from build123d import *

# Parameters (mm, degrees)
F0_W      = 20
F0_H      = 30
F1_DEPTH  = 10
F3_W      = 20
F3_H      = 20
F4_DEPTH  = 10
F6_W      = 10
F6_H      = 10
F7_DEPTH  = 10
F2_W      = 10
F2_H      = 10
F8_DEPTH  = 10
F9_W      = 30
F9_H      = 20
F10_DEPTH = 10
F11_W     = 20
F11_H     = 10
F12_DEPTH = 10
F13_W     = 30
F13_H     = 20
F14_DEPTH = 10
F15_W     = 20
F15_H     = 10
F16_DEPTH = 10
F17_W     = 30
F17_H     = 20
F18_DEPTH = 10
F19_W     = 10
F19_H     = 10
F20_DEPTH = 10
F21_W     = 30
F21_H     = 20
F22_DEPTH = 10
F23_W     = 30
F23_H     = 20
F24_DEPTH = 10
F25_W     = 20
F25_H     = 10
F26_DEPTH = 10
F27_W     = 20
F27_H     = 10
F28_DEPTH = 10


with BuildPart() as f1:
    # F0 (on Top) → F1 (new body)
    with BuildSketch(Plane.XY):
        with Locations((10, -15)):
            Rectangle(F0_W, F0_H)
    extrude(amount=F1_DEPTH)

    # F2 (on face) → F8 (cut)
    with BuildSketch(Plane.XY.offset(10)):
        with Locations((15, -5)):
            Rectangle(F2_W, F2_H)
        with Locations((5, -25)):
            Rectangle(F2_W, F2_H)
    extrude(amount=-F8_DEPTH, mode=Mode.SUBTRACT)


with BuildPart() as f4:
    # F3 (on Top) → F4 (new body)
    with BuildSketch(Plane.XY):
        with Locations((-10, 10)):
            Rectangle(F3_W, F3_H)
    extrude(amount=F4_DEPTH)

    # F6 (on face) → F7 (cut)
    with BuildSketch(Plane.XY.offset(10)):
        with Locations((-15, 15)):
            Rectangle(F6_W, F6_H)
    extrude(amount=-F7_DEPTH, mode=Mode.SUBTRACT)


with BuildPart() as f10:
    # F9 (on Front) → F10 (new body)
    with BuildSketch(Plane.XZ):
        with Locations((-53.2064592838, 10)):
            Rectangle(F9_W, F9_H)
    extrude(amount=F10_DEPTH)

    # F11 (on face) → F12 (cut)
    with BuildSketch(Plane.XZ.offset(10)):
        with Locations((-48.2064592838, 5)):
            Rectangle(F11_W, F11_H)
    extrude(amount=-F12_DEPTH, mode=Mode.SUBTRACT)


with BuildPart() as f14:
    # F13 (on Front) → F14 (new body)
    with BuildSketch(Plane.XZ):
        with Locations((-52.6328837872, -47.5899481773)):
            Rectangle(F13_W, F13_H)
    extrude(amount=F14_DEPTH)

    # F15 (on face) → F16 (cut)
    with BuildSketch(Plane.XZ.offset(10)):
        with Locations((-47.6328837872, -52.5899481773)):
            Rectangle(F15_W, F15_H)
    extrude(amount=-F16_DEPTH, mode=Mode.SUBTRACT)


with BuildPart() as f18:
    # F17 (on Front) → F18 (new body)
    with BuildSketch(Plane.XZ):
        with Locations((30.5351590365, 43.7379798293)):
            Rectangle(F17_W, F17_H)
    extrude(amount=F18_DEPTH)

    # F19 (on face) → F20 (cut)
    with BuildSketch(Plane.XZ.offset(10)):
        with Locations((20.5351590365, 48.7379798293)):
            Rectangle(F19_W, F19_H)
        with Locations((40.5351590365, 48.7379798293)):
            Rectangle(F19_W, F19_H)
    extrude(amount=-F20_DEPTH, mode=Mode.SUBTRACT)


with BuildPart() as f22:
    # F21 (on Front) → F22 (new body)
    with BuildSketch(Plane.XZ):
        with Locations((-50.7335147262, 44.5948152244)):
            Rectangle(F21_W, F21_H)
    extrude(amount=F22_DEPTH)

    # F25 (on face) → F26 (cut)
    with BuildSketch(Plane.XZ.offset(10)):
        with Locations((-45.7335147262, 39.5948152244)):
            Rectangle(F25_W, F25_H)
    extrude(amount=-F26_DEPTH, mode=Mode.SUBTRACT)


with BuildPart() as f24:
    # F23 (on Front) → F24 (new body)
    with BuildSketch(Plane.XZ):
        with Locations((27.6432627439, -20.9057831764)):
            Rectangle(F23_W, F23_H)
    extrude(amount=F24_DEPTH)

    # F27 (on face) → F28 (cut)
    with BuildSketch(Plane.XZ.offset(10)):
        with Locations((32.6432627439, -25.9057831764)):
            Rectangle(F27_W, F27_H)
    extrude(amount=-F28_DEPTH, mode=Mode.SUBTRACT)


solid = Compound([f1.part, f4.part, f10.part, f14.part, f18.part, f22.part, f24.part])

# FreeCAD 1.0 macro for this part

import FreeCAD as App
import Part
import Sketcher
from FreeCAD import Vector

doc = App.newDocument("Part")
body = doc.addObject("PartDesign::Body", "Body")

sketch1 = body.newObject("Sketcher::SketchObject", "Sketch")
sketch1.AttachmentSupport = (doc.getObject("XY_Plane"), [""])
sketch1.MapMode = "FlatFace"
sketch1.addGeometry(Part.LineSegment(Vector(0, 0, 0), Vector(0, -30, 0)), False)
sketch1.addGeometry(Part.LineSegment(Vector(0, -30, 0), Vector(20, -30, 0)), False)
sketch1.addGeometry(Part.LineSegment(Vector(20, -30, 0), Vector(20, 0, 0)), False)
sketch1.addGeometry(Part.LineSegment(Vector(20, 0, 0), Vector(0, 0, 0)), False)
sketch1.addConstraint(Sketcher.Constraint("Coincident", 0, 2, 1, 1))
sketch1.addConstraint(Sketcher.Constraint("Coincident", 1, 2, 2, 1))
sketch1.addConstraint(Sketcher.Constraint("Coincident", 2, 2, 3, 1))
sketch1.addConstraint(Sketcher.Constraint("Coincident", 3, 2, 0, 1))
sketch1.addConstraint(Sketcher.Constraint("Vertical", 0))
sketch1.addConstraint(Sketcher.Constraint("Horizontal", 1))
sketch1.addConstraint(Sketcher.Constraint("Vertical", 2))
sketch1.addConstraint(Sketcher.Constraint("Horizontal", 3))
sketch1.addConstraint(Sketcher.Constraint("Coincident", 3, 2, -1, 1))
sketch1.addConstraint(Sketcher.Constraint("DistanceX", 1, 1, 1, 2, 20.0))
sketch1.addConstraint(Sketcher.Constraint("DistanceY", 0, 2, 0, 1, 30.0))
pad1 = body.newObject("PartDesign::Pad", "Pad")
pad1.Profile = sketch1
pad1.Length = 10

sketch2 = body.newObject("Sketcher::SketchObject", "Sketch001")
sketch2.AttachmentSupport = (doc.getObject("XY_Plane"), [""])
sketch2.MapMode = "FlatFace"
sketch2.AttachmentOffset = App.Placement(Vector(0, 0, 10), App.Rotation())
sketch2.addGeometry(Part.LineSegment(Vector(10, 0, 0), Vector(10, -10, 0)), False)
sketch2.addGeometry(Part.LineSegment(Vector(10, -10, 0), Vector(20, -10, 0)), False)
sketch2.addGeometry(Part.LineSegment(Vector(20, -10, 0), Vector(20, 0, 0)), False)
sketch2.addGeometry(Part.LineSegment(Vector(20, 0, 0), Vector(10, 0, 0)), False)
sketch2.addGeometry(Part.LineSegment(Vector(0, -20, 0), Vector(0, -30, 0)), False)
sketch2.addGeometry(Part.LineSegment(Vector(0, -30, 0), Vector(10, -30, 0)), False)
sketch2.addGeometry(Part.LineSegment(Vector(10, -30, 0), Vector(10, -20, 0)), False)
sketch2.addGeometry(Part.LineSegment(Vector(10, -20, 0), Vector(0, -20, 0)), False)
sketch2.addConstraint(Sketcher.Constraint("Coincident", 0, 2, 1, 1))
sketch2.addConstraint(Sketcher.Constraint("Coincident", 1, 2, 2, 1))
sketch2.addConstraint(Sketcher.Constraint("Coincident", 2, 2, 3, 1))
sketch2.addConstraint(Sketcher.Constraint("Coincident", 3, 2, 0, 1))
sketch2.addConstraint(Sketcher.Constraint("Coincident", 4, 2, 5, 1))
sketch2.addConstraint(Sketcher.Constraint("Coincident", 5, 2, 6, 1))
sketch2.addConstraint(Sketcher.Constraint("Coincident", 6, 2, 7, 1))
sketch2.addConstraint(Sketcher.Constraint("Coincident", 7, 2, 4, 1))
sketch2.addConstraint(Sketcher.Constraint("Vertical", 0))
sketch2.addConstraint(Sketcher.Constraint("Horizontal", 1))
sketch2.addConstraint(Sketcher.Constraint("Vertical", 2))
sketch2.addConstraint(Sketcher.Constraint("Horizontal", 3))
sketch2.addConstraint(Sketcher.Constraint("Vertical", 4))
sketch2.addConstraint(Sketcher.Constraint("Horizontal", 5))
sketch2.addConstraint(Sketcher.Constraint("Vertical", 6))
sketch2.addConstraint(Sketcher.Constraint("Horizontal", 7))
sketch2.addConstraint(Sketcher.Constraint("PointOnObject", 2, 2, -1))
sketch2.addConstraint(Sketcher.Constraint("PointOnObject", 4, 2, -2))
sketch2.addConstraint(Sketcher.Constraint("Vertical", 3, 2, 5, 2))
sketch2.addConstraint(Sketcher.Constraint("Equal", 3, 5))
sketch2.addConstraint(Sketcher.Constraint("Equal", 7, 0))
sketch2.addConstraint(Sketcher.Constraint("Equal", 2, 4))
sketch2.addConstraint(Sketcher.Constraint("DistanceX", 1, 1, 1, 2, 10.0))
sketch2.addConstraint(Sketcher.Constraint("DistanceY", 4, 2, -1, 1, 30.0))
pocket1 = body.newObject("PartDesign::Pocket", "Pocket")
pocket1.Profile = sketch2
pocket1.Length = 10
body2 = doc.addObject("PartDesign::Body", "Body001")

sketch3 = body2.newObject("Sketcher::SketchObject", "Sketch002")
sketch3.AttachmentSupport = (doc.getObject("XY_Plane001"), [""])
sketch3.MapMode = "FlatFace"
sketch3.addGeometry(Part.LineSegment(Vector(-20, 20, 0), Vector(-20, 0, 0)), False)
sketch3.addGeometry(Part.LineSegment(Vector(-20, 0, 0), Vector(0, 0, 0)), False)
sketch3.addGeometry(Part.LineSegment(Vector(0, 0, 0), Vector(0, 20, 0)), False)
sketch3.addGeometry(Part.LineSegment(Vector(0, 20, 0), Vector(-20, 20, 0)), False)
sketch3.addConstraint(Sketcher.Constraint("Coincident", 0, 2, 1, 1))
sketch3.addConstraint(Sketcher.Constraint("Coincident", 1, 2, 2, 1))
sketch3.addConstraint(Sketcher.Constraint("Coincident", 2, 2, 3, 1))
sketch3.addConstraint(Sketcher.Constraint("Coincident", 3, 2, 0, 1))
sketch3.addConstraint(Sketcher.Constraint("Vertical", 0))
sketch3.addConstraint(Sketcher.Constraint("Horizontal", 1))
sketch3.addConstraint(Sketcher.Constraint("Vertical", 2))
sketch3.addConstraint(Sketcher.Constraint("Horizontal", 3))
sketch3.addConstraint(Sketcher.Constraint("Coincident", 1, 2, -1, 1))
sketch3.addConstraint(Sketcher.Constraint("Equal", 3, 0))
sketch3.addConstraint(Sketcher.Constraint("DistanceX", 1, 1, 1, 2, 20.0))
pad2 = body2.newObject("PartDesign::Pad", "Pad001")
pad2.Profile = sketch3
pad2.Length = 10

sketch4 = body2.newObject("Sketcher::SketchObject", "Sketch003")
sketch4.AttachmentSupport = (doc.getObject("XY_Plane001"), [""])
sketch4.MapMode = "FlatFace"
sketch4.AttachmentOffset = App.Placement(Vector(0, 0, 10), App.Rotation())
sketch4.addGeometry(Part.LineSegment(Vector(-20, 20, 0), Vector(-20, 10, 0)), False)
sketch4.addGeometry(Part.LineSegment(Vector(-20, 10, 0), Vector(-10, 10, 0)), False)
sketch4.addGeometry(Part.LineSegment(Vector(-10, 10, 0), Vector(-10, 20, 0)), False)
sketch4.addGeometry(Part.LineSegment(Vector(-10, 20, 0), Vector(-20, 20, 0)), False)
sketch4.addConstraint(Sketcher.Constraint("Coincident", 0, 2, 1, 1))
sketch4.addConstraint(Sketcher.Constraint("Coincident", 1, 2, 2, 1))
sketch4.addConstraint(Sketcher.Constraint("Coincident", 2, 2, 3, 1))
sketch4.addConstraint(Sketcher.Constraint("Coincident", 3, 2, 0, 1))
sketch4.addConstraint(Sketcher.Constraint("Vertical", 0))
sketch4.addConstraint(Sketcher.Constraint("Horizontal", 1))
sketch4.addConstraint(Sketcher.Constraint("Vertical", 2))
sketch4.addConstraint(Sketcher.Constraint("Horizontal", 3))
sketch4.addConstraint(Sketcher.Constraint("Equal", 3, 0))
sketch4.addConstraint(Sketcher.Constraint("DistanceX", 1, 1, 1, 2, 10.0))
sketch4.addConstraint(Sketcher.Constraint("DistanceX", 0, 2, -1, 1, 20.0))
sketch4.addConstraint(Sketcher.Constraint("DistanceY", -1, 1, 0, 2, 10.0))
pocket2 = body2.newObject("PartDesign::Pocket", "Pocket001")
pocket2.Profile = sketch4
pocket2.Length = 10
body3 = doc.addObject("PartDesign::Body", "Body002")

sketch5 = body3.newObject("Sketcher::SketchObject", "Sketch004")
sketch5.AttachmentSupport = (doc.getObject("XZ_Plane002"), [""])
sketch5.MapMode = "FlatFace"
sketch5.addGeometry(Part.LineSegment(Vector(-68, 20, 0), Vector(-68, 0, 0)), False)
sketch5.addGeometry(Part.LineSegment(Vector(-68, 0, 0), Vector(-38, 0, 0)), False)
sketch5.addGeometry(Part.LineSegment(Vector(-38, 0, 0), Vector(-38, 20, 0)), False)
sketch5.addGeometry(Part.LineSegment(Vector(-38, 20, 0), Vector(-68, 20, 0)), False)
sketch5.addConstraint(Sketcher.Constraint("Coincident", 0, 2, 1, 1))
sketch5.addConstraint(Sketcher.Constraint("Coincident", 1, 2, 2, 1))
sketch5.addConstraint(Sketcher.Constraint("Coincident", 2, 2, 3, 1))
sketch5.addConstraint(Sketcher.Constraint("Coincident", 3, 2, 0, 1))
sketch5.addConstraint(Sketcher.Constraint("Vertical", 0))
sketch5.addConstraint(Sketcher.Constraint("Horizontal", 1))
sketch5.addConstraint(Sketcher.Constraint("Vertical", 2))
sketch5.addConstraint(Sketcher.Constraint("Horizontal", 3))
sketch5.addConstraint(Sketcher.Constraint("PointOnObject", 0, 2, -1))
sketch5.addConstraint(Sketcher.Constraint("DistanceX", 1, 1, 1, 2, 30.0))
sketch5.addConstraint(Sketcher.Constraint("DistanceY", 0, 2, 0, 1, 20.0))
sketch5.addConstraint(Sketcher.Constraint("DistanceX", 0, 2, -1, 1, 68.206459))
pad3 = body3.newObject("PartDesign::Pad", "Pad002")
pad3.Profile = sketch5
pad3.Length = 10

sketch6 = body3.newObject("Sketcher::SketchObject", "Sketch005")
sketch6.AttachmentSupport = (doc.getObject("XZ_Plane002"), [""])
sketch6.MapMode = "FlatFace"
sketch6.AttachmentOffset = App.Placement(Vector(0, 0, 10), App.Rotation())
sketch6.addGeometry(Part.LineSegment(Vector(-58, 10, 0), Vector(-58, 0, 0)), False)
sketch6.addGeometry(Part.LineSegment(Vector(-58, 0, 0), Vector(-38, 0, 0)), False)
sketch6.addGeometry(Part.LineSegment(Vector(-38, 0, 0), Vector(-38, 10, 0)), False)
sketch6.addGeometry(Part.LineSegment(Vector(-38, 10, 0), Vector(-58, 10, 0)), False)
sketch6.addConstraint(Sketcher.Constraint("Coincident", 0, 2, 1, 1))
sketch6.addConstraint(Sketcher.Constraint("Coincident", 1, 2, 2, 1))
sketch6.addConstraint(Sketcher.Constraint("Coincident", 2, 2, 3, 1))
sketch6.addConstraint(Sketcher.Constraint("Coincident", 3, 2, 0, 1))
sketch6.addConstraint(Sketcher.Constraint("Vertical", 0))
sketch6.addConstraint(Sketcher.Constraint("Horizontal", 1))
sketch6.addConstraint(Sketcher.Constraint("Vertical", 2))
sketch6.addConstraint(Sketcher.Constraint("Horizontal", 3))
sketch6.addConstraint(Sketcher.Constraint("PointOnObject", 0, 2, -1))
sketch6.addConstraint(Sketcher.Constraint("DistanceX", 1, 1, 1, 2, 20.0))
sketch6.addConstraint(Sketcher.Constraint("DistanceY", 0, 2, 0, 1, 10.0))
sketch6.addConstraint(Sketcher.Constraint("DistanceX", 0, 2, -1, 1, 58.206459))
pocket3 = body3.newObject("PartDesign::Pocket", "Pocket002")
pocket3.Profile = sketch6
pocket3.Length = 10
body4 = doc.addObject("PartDesign::Body", "Body003")

sketch7 = body4.newObject("Sketcher::SketchObject", "Sketch006")
sketch7.AttachmentSupport = (doc.getObject("XZ_Plane003"), [""])
sketch7.MapMode = "FlatFace"
sketch7.addGeometry(Part.LineSegment(Vector(-68, -38, 0), Vector(-68, -58, 0)), False)
sketch7.addGeometry(Part.LineSegment(Vector(-68, -58, 0), Vector(-38, -58, 0)), False)
sketch7.addGeometry(Part.LineSegment(Vector(-38, -58, 0), Vector(-38, -38, 0)), False)
sketch7.addGeometry(Part.LineSegment(Vector(-38, -38, 0), Vector(-68, -38, 0)), False)
sketch7.addConstraint(Sketcher.Constraint("Coincident", 0, 2, 1, 1))
sketch7.addConstraint(Sketcher.Constraint("Coincident", 1, 2, 2, 1))
sketch7.addConstraint(Sketcher.Constraint("Coincident", 2, 2, 3, 1))
sketch7.addConstraint(Sketcher.Constraint("Coincident", 3, 2, 0, 1))
sketch7.addConstraint(Sketcher.Constraint("Vertical", 0))
sketch7.addConstraint(Sketcher.Constraint("Horizontal", 1))
sketch7.addConstraint(Sketcher.Constraint("Vertical", 2))
sketch7.addConstraint(Sketcher.Constraint("Horizontal", 3))
sketch7.addConstraint(Sketcher.Constraint("DistanceX", 1, 1, 1, 2, 30.0))
sketch7.addConstraint(Sketcher.Constraint("DistanceY", 0, 2, 0, 1, 20.0))
sketch7.addConstraint(Sketcher.Constraint("DistanceY", 0, 2, -1, 1, 57.589948))
sketch7.addConstraint(Sketcher.Constraint("DistanceX", 0, 2, -1, 1, 67.632884))
pad4 = body4.newObject("PartDesign::Pad", "Pad003")
pad4.Profile = sketch7
pad4.Length = 10

sketch8 = body4.newObject("Sketcher::SketchObject", "Sketch007")
sketch8.AttachmentSupport = (doc.getObject("XZ_Plane003"), [""])
sketch8.MapMode = "FlatFace"
sketch8.AttachmentOffset = App.Placement(Vector(0, 0, 10), App.Rotation())
sketch8.addGeometry(Part.LineSegment(Vector(-58, -48, 0), Vector(-58, -58, 0)), False)
sketch8.addGeometry(Part.LineSegment(Vector(-58, -58, 0), Vector(-38, -58, 0)), False)
sketch8.addGeometry(Part.LineSegment(Vector(-38, -58, 0), Vector(-38, -48, 0)), False)
sketch8.addGeometry(Part.LineSegment(Vector(-38, -48, 0), Vector(-58, -48, 0)), False)
sketch8.addConstraint(Sketcher.Constraint("Coincident", 0, 2, 1, 1))
sketch8.addConstraint(Sketcher.Constraint("Coincident", 1, 2, 2, 1))
sketch8.addConstraint(Sketcher.Constraint("Coincident", 2, 2, 3, 1))
sketch8.addConstraint(Sketcher.Constraint("Coincident", 3, 2, 0, 1))
sketch8.addConstraint(Sketcher.Constraint("Vertical", 0))
sketch8.addConstraint(Sketcher.Constraint("Horizontal", 1))
sketch8.addConstraint(Sketcher.Constraint("Vertical", 2))
sketch8.addConstraint(Sketcher.Constraint("Horizontal", 3))
sketch8.addConstraint(Sketcher.Constraint("DistanceX", 1, 1, 1, 2, 20.0))
sketch8.addConstraint(Sketcher.Constraint("DistanceY", 0, 2, 0, 1, 10.0))
sketch8.addConstraint(Sketcher.Constraint("DistanceY", 0, 2, -1, 1, 57.589948))
sketch8.addConstraint(Sketcher.Constraint("DistanceX", 0, 2, -1, 1, 57.632884))
pocket4 = body4.newObject("PartDesign::Pocket", "Pocket003")
pocket4.Profile = sketch8
pocket4.Length = 10
body5 = doc.addObject("PartDesign::Body", "Body004")

sketch9 = body5.newObject("Sketcher::SketchObject", "Sketch008")
sketch9.AttachmentSupport = (doc.getObject("XZ_Plane004"), [""])
sketch9.MapMode = "FlatFace"
sketch9.addGeometry(Part.LineSegment(Vector(16, 54, 0), Vector(16, 34, 0)), False)
sketch9.addGeometry(Part.LineSegment(Vector(16, 34, 0), Vector(46, 34, 0)), False)
sketch9.addGeometry(Part.LineSegment(Vector(46, 34, 0), Vector(46, 54, 0)), False)
sketch9.addGeometry(Part.LineSegment(Vector(46, 54, 0), Vector(16, 54, 0)), False)
sketch9.addConstraint(Sketcher.Constraint("Coincident", 0, 2, 1, 1))
sketch9.addConstraint(Sketcher.Constraint("Coincident", 1, 2, 2, 1))
sketch9.addConstraint(Sketcher.Constraint("Coincident", 2, 2, 3, 1))
sketch9.addConstraint(Sketcher.Constraint("Coincident", 3, 2, 0, 1))
sketch9.addConstraint(Sketcher.Constraint("Vertical", 0))
sketch9.addConstraint(Sketcher.Constraint("Horizontal", 1))
sketch9.addConstraint(Sketcher.Constraint("Vertical", 2))
sketch9.addConstraint(Sketcher.Constraint("Horizontal", 3))
sketch9.addConstraint(Sketcher.Constraint("DistanceX", 1, 1, 1, 2, 30.0))
sketch9.addConstraint(Sketcher.Constraint("DistanceY", 0, 2, 0, 1, 20.0))
sketch9.addConstraint(Sketcher.Constraint("DistanceX", -1, 1, 0, 2, 15.535159))
sketch9.addConstraint(Sketcher.Constraint("DistanceY", -1, 1, 0, 2, 33.73798))
pad5 = body5.newObject("PartDesign::Pad", "Pad004")
pad5.Profile = sketch9
pad5.Length = 10

sketch10 = body5.newObject("Sketcher::SketchObject", "Sketch009")
sketch10.AttachmentSupport = (doc.getObject("XZ_Plane004"), [""])
sketch10.MapMode = "FlatFace"
sketch10.AttachmentOffset = App.Placement(Vector(0, 0, 10), App.Rotation())
sketch10.addGeometry(Part.LineSegment(Vector(16, 54, 0), Vector(16, 44, 0)), False)
sketch10.addGeometry(Part.LineSegment(Vector(16, 44, 0), Vector(26, 44, 0)), False)
sketch10.addGeometry(Part.LineSegment(Vector(26, 44, 0), Vector(26, 54, 0)), False)
sketch10.addGeometry(Part.LineSegment(Vector(26, 54, 0), Vector(16, 54, 0)), False)
sketch10.addGeometry(Part.LineSegment(Vector(36, 54, 0), Vector(36, 44, 0)), False)
sketch10.addGeometry(Part.LineSegment(Vector(36, 44, 0), Vector(46, 44, 0)), False)
sketch10.addGeometry(Part.LineSegment(Vector(46, 44, 0), Vector(46, 54, 0)), False)
sketch10.addGeometry(Part.LineSegment(Vector(46, 54, 0), Vector(36, 54, 0)), False)
sketch10.addConstraint(Sketcher.Constraint("Coincident", 0, 2, 1, 1))
sketch10.addConstraint(Sketcher.Constraint("Coincident", 1, 2, 2, 1))
sketch10.addConstraint(Sketcher.Constraint("Coincident", 2, 2, 3, 1))
sketch10.addConstraint(Sketcher.Constraint("Coincident", 3, 2, 0, 1))
sketch10.addConstraint(Sketcher.Constraint("Coincident", 4, 2, 5, 1))
sketch10.addConstraint(Sketcher.Constraint("Coincident", 5, 2, 6, 1))
sketch10.addConstraint(Sketcher.Constraint("Coincident", 6, 2, 7, 1))
sketch10.addConstraint(Sketcher.Constraint("Coincident", 7, 2, 4, 1))
sketch10.addConstraint(Sketcher.Constraint("Vertical", 0))
sketch10.addConstraint(Sketcher.Constraint("Horizontal", 1))
sketch10.addConstraint(Sketcher.Constraint("Vertical", 2))
sketch10.addConstraint(Sketcher.Constraint("Horizontal", 3))
sketch10.addConstraint(Sketcher.Constraint("Vertical", 4))
sketch10.addConstraint(Sketcher.Constraint("Horizontal", 5))
sketch10.addConstraint(Sketcher.Constraint("Vertical", 6))
sketch10.addConstraint(Sketcher.Constraint("Horizontal", 7))
sketch10.addConstraint(Sketcher.Constraint("Horizontal", 1, 2, 4, 2))
sketch10.addConstraint(Sketcher.Constraint("Horizontal", 3, 2, 6, 2))
sketch10.addConstraint(Sketcher.Constraint("Equal", 3, 5))
sketch10.addConstraint(Sketcher.Constraint("Equal", 7, 0))
sketch10.addConstraint(Sketcher.Constraint("DistanceX", 1, 1, 1, 2, 10.0))
sketch10.addConstraint(Sketcher.Constraint("DistanceX", 1, 2, 4, 2, 10.0))
sketch10.addConstraint(Sketcher.Constraint("DistanceX", -1, 1, 0, 2, 15.535159))
sketch10.addConstraint(Sketcher.Constraint("DistanceY", -1, 1, 0, 2, 43.73798))
pocket5 = body5.newObject("PartDesign::Pocket", "Pocket004")
pocket5.Profile = sketch10
pocket5.Length = 10
body6 = doc.addObject("PartDesign::Body", "Body005")

sketch11 = body6.newObject("Sketcher::SketchObject", "Sketch010")
sketch11.AttachmentSupport = (doc.getObject("XZ_Plane005"), [""])
sketch11.MapMode = "FlatFace"
sketch11.addGeometry(Part.LineSegment(Vector(-66, 55, 0), Vector(-66, 35, 0)), False)
sketch11.addGeometry(Part.LineSegment(Vector(-66, 35, 0), Vector(-36, 35, 0)), False)
sketch11.addGeometry(Part.LineSegment(Vector(-36, 35, 0), Vector(-36, 55, 0)), False)
sketch11.addGeometry(Part.LineSegment(Vector(-36, 55, 0), Vector(-66, 55, 0)), False)
sketch11.addConstraint(Sketcher.Constraint("Coincident", 0, 2, 1, 1))
sketch11.addConstraint(Sketcher.Constraint("Coincident", 1, 2, 2, 1))
sketch11.addConstraint(Sketcher.Constraint("Coincident", 2, 2, 3, 1))
sketch11.addConstraint(Sketcher.Constraint("Coincident", 3, 2, 0, 1))
sketch11.addConstraint(Sketcher.Constraint("Vertical", 0))
sketch11.addConstraint(Sketcher.Constraint("Horizontal", 1))
sketch11.addConstraint(Sketcher.Constraint("Vertical", 2))
sketch11.addConstraint(Sketcher.Constraint("Horizontal", 3))
sketch11.addConstraint(Sketcher.Constraint("DistanceX", 1, 1, 1, 2, 30.0))
sketch11.addConstraint(Sketcher.Constraint("DistanceY", 0, 2, 0, 1, 20.0))
sketch11.addConstraint(Sketcher.Constraint("DistanceX", 0, 2, -1, 1, 65.733515))
sketch11.addConstraint(Sketcher.Constraint("DistanceY", -1, 1, 0, 2, 34.594815))
pad6 = body6.newObject("PartDesign::Pad", "Pad005")
pad6.Profile = sketch11
pad6.Length = 10

sketch12 = body6.newObject("Sketcher::SketchObject", "Sketch011")
sketch12.AttachmentSupport = (doc.getObject("XZ_Plane005"), [""])
sketch12.MapMode = "FlatFace"
sketch12.AttachmentOffset = App.Placement(Vector(0, 0, 10), App.Rotation())
sketch12.addGeometry(Part.LineSegment(Vector(-56, 45, 0), Vector(-56, 35, 0)), False)
sketch12.addGeometry(Part.LineSegment(Vector(-56, 35, 0), Vector(-36, 35, 0)), False)
sketch12.addGeometry(Part.LineSegment(Vector(-36, 35, 0), Vector(-36, 45, 0)), False)
sketch12.addGeometry(Part.LineSegment(Vector(-36, 45, 0), Vector(-56, 45, 0)), False)
sketch12.addConstraint(Sketcher.Constraint("Coincident", 0, 2, 1, 1))
sketch12.addConstraint(Sketcher.Constraint("Coincident", 1, 2, 2, 1))
sketch12.addConstraint(Sketcher.Constraint("Coincident", 2, 2, 3, 1))
sketch12.addConstraint(Sketcher.Constraint("Coincident", 3, 2, 0, 1))
sketch12.addConstraint(Sketcher.Constraint("Vertical", 0))
sketch12.addConstraint(Sketcher.Constraint("Horizontal", 1))
sketch12.addConstraint(Sketcher.Constraint("Vertical", 2))
sketch12.addConstraint(Sketcher.Constraint("Horizontal", 3))
sketch12.addConstraint(Sketcher.Constraint("DistanceX", 1, 1, 1, 2, 20.0))
sketch12.addConstraint(Sketcher.Constraint("DistanceY", 0, 2, 0, 1, 10.0))
sketch12.addConstraint(Sketcher.Constraint("DistanceX", 0, 2, -1, 1, 55.733515))
sketch12.addConstraint(Sketcher.Constraint("DistanceY", -1, 1, 0, 2, 34.594815))
pocket6 = body6.newObject("PartDesign::Pocket", "Pocket005")
pocket6.Profile = sketch12
pocket6.Length = 10
body7 = doc.addObject("PartDesign::Body", "Body006")

sketch13 = body7.newObject("Sketcher::SketchObject", "Sketch012")
sketch13.AttachmentSupport = (doc.getObject("XZ_Plane006"), [""])
sketch13.MapMode = "FlatFace"
sketch13.addGeometry(Part.LineSegment(Vector(13, -11, 0), Vector(13, -31, 0)), False)
sketch13.addGeometry(Part.LineSegment(Vector(13, -31, 0), Vector(43, -31, 0)), False)
sketch13.addGeometry(Part.LineSegment(Vector(43, -31, 0), Vector(43, -11, 0)), False)
sketch13.addGeometry(Part.LineSegment(Vector(43, -11, 0), Vector(13, -11, 0)), False)
sketch13.addConstraint(Sketcher.Constraint("Coincident", 0, 2, 1, 1))
sketch13.addConstraint(Sketcher.Constraint("Coincident", 1, 2, 2, 1))
sketch13.addConstraint(Sketcher.Constraint("Coincident", 2, 2, 3, 1))
sketch13.addConstraint(Sketcher.Constraint("Coincident", 3, 2, 0, 1))
sketch13.addConstraint(Sketcher.Constraint("Vertical", 0))
sketch13.addConstraint(Sketcher.Constraint("Horizontal", 1))
sketch13.addConstraint(Sketcher.Constraint("Vertical", 2))
sketch13.addConstraint(Sketcher.Constraint("Horizontal", 3))
sketch13.addConstraint(Sketcher.Constraint("DistanceX", 1, 1, 1, 2, 30.0))
sketch13.addConstraint(Sketcher.Constraint("DistanceY", 0, 2, 0, 1, 20.0))
sketch13.addConstraint(Sketcher.Constraint("DistanceX", -1, 1, 0, 2, 12.643263))
sketch13.addConstraint(Sketcher.Constraint("DistanceY", 0, 2, -1, 1, 30.905783))
pad7 = body7.newObject("PartDesign::Pad", "Pad006")
pad7.Profile = sketch13
pad7.Length = 10

sketch14 = body7.newObject("Sketcher::SketchObject", "Sketch013")
sketch14.AttachmentSupport = (doc.getObject("XZ_Plane006"), [""])
sketch14.MapMode = "FlatFace"
sketch14.AttachmentOffset = App.Placement(Vector(0, 0, 10), App.Rotation())
sketch14.addGeometry(Part.LineSegment(Vector(23, -21, 0), Vector(23, -31, 0)), False)
sketch14.addGeometry(Part.LineSegment(Vector(23, -31, 0), Vector(43, -31, 0)), False)
sketch14.addGeometry(Part.LineSegment(Vector(43, -31, 0), Vector(43, -21, 0)), False)
sketch14.addGeometry(Part.LineSegment(Vector(43, -21, 0), Vector(23, -21, 0)), False)
sketch14.addConstraint(Sketcher.Constraint("Coincident", 0, 2, 1, 1))
sketch14.addConstraint(Sketcher.Constraint("Coincident", 1, 2, 2, 1))
sketch14.addConstraint(Sketcher.Constraint("Coincident", 2, 2, 3, 1))
sketch14.addConstraint(Sketcher.Constraint("Coincident", 3, 2, 0, 1))
sketch14.addConstraint(Sketcher.Constraint("Vertical", 0))
sketch14.addConstraint(Sketcher.Constraint("Horizontal", 1))
sketch14.addConstraint(Sketcher.Constraint("Vertical", 2))
sketch14.addConstraint(Sketcher.Constraint("Horizontal", 3))
sketch14.addConstraint(Sketcher.Constraint("DistanceX", 1, 1, 1, 2, 20.0))
sketch14.addConstraint(Sketcher.Constraint("DistanceY", 0, 2, 0, 1, 10.0))
sketch14.addConstraint(Sketcher.Constraint("DistanceX", -1, 1, 0, 2, 22.643263))
sketch14.addConstraint(Sketcher.Constraint("DistanceY", 0, 2, -1, 1, 30.905783))
pocket7 = body7.newObject("PartDesign::Pocket", "Pocket006")
pocket7.Profile = sketch14
pocket7.Length = 10

doc.recompute()
